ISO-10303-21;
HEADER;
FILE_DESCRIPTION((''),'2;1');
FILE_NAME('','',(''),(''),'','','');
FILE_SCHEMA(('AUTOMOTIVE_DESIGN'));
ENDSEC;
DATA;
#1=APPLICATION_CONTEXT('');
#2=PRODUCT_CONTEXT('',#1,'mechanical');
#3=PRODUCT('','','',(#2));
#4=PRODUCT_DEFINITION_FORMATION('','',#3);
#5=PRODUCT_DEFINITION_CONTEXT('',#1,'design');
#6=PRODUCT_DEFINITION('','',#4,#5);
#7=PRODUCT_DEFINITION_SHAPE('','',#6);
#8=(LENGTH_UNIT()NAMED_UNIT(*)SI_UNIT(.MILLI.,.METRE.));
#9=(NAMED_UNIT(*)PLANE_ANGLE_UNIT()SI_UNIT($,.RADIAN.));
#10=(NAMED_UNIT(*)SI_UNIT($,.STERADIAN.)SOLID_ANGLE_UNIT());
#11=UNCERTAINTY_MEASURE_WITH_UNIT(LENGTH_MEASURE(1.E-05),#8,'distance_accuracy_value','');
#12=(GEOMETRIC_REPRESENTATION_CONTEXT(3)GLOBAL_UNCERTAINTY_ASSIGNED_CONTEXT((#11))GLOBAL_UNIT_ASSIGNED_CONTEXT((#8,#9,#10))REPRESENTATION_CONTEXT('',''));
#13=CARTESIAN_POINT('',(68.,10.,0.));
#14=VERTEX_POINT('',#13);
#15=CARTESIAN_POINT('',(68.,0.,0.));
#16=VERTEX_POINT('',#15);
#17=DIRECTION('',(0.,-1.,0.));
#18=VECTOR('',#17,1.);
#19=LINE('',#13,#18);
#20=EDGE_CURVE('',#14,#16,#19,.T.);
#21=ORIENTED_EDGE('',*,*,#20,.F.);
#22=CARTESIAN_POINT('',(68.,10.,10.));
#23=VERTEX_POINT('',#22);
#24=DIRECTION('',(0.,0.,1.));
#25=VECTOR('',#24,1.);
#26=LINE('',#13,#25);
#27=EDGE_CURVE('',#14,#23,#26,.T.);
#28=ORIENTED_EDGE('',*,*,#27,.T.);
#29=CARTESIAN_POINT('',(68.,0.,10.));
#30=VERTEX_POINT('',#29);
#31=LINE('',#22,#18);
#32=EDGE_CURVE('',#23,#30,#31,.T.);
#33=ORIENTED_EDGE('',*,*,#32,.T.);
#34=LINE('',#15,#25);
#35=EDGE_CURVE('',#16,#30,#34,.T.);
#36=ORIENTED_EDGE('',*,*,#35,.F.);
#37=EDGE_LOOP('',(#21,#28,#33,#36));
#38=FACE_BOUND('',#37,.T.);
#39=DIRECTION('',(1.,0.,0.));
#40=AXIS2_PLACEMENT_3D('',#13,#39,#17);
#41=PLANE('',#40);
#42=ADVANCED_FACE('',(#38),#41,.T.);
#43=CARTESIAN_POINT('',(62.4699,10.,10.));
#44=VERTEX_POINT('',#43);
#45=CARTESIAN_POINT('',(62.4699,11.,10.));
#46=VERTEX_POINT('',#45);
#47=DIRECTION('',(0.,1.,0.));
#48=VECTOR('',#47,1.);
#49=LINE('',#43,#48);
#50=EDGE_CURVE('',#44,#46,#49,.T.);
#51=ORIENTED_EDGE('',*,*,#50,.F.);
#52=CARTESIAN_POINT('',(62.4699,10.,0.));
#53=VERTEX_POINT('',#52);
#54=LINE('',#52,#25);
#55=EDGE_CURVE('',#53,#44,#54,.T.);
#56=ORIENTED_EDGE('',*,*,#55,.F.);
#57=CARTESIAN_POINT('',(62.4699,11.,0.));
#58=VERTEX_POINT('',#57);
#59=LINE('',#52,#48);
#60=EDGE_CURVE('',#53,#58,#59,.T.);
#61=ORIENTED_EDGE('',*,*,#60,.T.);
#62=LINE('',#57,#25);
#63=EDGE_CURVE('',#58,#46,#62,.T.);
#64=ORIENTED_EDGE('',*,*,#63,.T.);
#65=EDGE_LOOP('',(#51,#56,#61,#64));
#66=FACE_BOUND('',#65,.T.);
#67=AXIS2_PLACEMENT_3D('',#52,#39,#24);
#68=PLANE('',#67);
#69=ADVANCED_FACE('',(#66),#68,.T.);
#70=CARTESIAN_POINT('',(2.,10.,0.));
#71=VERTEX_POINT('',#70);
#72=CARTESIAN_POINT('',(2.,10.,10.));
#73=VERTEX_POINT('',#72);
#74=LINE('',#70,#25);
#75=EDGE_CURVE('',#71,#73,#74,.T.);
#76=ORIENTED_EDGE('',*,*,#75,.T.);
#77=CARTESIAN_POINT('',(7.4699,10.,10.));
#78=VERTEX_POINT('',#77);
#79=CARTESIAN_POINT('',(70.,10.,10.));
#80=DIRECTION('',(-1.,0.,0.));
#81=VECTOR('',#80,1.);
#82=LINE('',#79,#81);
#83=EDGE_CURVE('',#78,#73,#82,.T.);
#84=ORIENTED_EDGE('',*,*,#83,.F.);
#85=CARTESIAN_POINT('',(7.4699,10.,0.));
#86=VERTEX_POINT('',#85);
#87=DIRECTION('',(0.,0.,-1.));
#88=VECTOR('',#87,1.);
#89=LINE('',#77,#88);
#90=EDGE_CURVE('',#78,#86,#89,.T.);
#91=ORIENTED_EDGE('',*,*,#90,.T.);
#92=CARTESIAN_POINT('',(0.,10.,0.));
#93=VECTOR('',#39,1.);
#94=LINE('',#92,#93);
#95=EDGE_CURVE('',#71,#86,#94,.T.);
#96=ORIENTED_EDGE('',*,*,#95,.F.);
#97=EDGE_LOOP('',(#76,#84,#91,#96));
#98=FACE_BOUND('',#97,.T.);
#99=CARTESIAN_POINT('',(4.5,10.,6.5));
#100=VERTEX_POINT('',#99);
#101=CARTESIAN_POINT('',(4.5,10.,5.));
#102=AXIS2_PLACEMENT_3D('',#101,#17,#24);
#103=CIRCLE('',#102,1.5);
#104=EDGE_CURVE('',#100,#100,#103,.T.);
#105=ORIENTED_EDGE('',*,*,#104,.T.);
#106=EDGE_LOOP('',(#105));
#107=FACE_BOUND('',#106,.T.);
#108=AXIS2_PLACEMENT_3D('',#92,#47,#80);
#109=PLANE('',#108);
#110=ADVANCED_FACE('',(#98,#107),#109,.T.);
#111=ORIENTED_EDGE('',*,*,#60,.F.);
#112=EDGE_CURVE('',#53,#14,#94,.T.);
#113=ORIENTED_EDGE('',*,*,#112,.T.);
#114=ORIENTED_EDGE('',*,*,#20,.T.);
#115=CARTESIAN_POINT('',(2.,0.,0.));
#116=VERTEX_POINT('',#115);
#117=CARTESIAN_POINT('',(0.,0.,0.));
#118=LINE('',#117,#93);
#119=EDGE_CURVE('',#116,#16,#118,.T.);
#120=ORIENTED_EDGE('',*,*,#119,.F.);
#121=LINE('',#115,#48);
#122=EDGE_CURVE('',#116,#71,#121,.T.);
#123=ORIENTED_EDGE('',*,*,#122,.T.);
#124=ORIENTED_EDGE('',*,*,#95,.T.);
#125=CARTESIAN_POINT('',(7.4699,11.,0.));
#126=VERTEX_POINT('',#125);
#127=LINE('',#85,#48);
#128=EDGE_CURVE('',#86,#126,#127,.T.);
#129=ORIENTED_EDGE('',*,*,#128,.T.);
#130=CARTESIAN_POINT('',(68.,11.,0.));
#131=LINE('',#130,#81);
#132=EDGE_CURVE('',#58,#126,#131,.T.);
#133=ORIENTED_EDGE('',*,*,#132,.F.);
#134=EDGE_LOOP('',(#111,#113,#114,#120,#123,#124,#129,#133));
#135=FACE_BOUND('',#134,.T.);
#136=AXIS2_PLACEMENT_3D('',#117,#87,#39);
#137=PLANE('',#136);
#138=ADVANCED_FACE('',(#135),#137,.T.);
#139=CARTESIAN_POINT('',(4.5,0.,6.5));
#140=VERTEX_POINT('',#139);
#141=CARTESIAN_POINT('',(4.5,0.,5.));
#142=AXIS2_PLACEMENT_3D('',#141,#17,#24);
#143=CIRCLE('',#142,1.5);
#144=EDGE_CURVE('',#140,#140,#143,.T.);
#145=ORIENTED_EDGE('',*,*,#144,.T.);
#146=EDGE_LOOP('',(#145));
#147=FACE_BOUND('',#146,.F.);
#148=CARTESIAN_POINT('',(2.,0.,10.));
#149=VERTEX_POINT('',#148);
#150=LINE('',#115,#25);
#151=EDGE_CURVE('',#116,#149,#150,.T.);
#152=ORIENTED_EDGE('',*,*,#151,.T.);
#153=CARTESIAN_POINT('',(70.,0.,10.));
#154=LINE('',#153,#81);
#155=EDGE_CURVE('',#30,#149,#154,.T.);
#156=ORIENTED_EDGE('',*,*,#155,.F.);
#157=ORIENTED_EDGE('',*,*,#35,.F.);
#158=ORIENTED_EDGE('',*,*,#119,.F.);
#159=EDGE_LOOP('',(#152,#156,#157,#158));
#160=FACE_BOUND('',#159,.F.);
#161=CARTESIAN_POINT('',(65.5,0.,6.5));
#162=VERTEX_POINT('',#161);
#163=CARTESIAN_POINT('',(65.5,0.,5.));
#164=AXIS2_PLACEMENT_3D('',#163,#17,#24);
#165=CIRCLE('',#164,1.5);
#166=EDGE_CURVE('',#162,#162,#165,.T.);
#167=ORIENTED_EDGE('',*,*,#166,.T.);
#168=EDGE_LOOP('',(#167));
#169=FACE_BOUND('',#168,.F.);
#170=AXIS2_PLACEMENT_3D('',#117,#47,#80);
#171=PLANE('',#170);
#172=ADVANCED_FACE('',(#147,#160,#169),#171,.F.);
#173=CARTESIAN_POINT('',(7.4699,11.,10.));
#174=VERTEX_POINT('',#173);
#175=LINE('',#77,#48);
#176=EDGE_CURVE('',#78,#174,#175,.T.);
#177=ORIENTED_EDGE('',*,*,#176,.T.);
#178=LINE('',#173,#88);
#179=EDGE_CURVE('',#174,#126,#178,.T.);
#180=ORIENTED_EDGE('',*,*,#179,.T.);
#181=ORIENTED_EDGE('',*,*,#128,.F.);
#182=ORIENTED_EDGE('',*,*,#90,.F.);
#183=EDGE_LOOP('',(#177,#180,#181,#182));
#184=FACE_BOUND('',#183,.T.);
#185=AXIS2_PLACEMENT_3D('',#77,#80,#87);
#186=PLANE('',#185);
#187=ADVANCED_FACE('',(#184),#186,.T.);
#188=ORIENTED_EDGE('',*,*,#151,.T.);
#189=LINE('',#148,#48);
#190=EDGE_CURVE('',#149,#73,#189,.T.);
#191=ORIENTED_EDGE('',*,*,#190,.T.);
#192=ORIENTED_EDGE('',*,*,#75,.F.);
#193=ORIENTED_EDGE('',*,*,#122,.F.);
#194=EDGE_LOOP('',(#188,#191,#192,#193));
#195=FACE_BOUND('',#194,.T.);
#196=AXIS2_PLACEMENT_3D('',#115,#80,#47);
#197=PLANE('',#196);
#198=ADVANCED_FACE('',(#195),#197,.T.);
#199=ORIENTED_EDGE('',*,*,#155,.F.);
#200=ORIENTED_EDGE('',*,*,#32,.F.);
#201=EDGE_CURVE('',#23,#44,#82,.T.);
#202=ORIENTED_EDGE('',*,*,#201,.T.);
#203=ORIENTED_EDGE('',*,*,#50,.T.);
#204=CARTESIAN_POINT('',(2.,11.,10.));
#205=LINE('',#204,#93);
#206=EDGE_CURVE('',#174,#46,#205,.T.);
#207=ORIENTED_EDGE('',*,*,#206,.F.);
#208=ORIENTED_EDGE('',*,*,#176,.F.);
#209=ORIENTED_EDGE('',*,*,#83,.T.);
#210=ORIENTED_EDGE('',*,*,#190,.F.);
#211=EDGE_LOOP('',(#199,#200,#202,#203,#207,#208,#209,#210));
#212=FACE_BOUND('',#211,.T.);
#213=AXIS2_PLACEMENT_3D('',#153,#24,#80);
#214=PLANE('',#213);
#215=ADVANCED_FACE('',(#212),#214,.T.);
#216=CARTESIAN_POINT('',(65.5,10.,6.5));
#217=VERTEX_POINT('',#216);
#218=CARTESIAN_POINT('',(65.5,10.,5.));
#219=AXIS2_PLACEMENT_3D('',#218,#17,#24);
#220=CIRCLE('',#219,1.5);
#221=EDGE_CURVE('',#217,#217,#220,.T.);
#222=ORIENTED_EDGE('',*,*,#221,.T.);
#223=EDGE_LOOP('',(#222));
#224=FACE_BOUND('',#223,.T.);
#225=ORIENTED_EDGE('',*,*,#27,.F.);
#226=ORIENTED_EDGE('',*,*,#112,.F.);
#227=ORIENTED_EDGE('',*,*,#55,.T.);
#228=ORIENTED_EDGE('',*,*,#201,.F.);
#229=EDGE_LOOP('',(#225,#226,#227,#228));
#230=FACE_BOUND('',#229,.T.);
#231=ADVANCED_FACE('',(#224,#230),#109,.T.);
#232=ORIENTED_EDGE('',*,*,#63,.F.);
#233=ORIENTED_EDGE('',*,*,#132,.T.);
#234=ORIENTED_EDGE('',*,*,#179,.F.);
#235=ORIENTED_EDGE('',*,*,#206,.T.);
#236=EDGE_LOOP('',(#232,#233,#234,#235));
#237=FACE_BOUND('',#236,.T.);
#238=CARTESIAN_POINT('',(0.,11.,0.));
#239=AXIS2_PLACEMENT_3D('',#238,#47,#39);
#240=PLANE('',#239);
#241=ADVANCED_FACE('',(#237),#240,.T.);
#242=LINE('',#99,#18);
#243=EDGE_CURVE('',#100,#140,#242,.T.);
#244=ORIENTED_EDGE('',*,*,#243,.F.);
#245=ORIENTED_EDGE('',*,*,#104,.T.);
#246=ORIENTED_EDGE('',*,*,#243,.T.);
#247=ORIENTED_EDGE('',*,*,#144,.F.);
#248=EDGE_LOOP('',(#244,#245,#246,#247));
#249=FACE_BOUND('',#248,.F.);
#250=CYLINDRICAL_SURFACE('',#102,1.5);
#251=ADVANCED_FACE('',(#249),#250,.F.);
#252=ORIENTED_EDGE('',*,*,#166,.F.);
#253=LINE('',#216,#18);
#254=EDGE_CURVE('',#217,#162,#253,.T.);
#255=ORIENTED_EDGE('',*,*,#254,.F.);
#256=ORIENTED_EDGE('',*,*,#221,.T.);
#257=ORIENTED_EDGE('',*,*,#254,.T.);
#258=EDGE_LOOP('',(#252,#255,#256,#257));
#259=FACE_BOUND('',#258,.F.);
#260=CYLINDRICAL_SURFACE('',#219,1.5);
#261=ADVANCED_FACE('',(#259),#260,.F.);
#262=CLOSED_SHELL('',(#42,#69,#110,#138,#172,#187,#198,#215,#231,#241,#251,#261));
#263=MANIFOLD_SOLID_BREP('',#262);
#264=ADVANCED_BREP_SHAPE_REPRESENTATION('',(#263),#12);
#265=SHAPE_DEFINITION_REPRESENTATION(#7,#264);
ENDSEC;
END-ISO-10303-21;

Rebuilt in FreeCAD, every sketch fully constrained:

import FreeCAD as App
import Part
import Sketcher

V = App.Vector
Q = App.Units.Quantity


def add_polygon(sketch, points):
    """Adds a closed chain of lines whose ends are joined by coincident constraints."""
    first, n = sketch.GeometryCount, len(points)
    for a, b in zip(points, points[1:] + points[:1]):
        sketch.addGeometry(Part.LineSegment(App.Vector(*a, 0), App.Vector(*b, 0)), False)
    for i in range(n):
        sketch.addConstraint(Sketcher.Constraint("Coincident", first + i, 2, first + (i + 1) % n, 1))

doc = App.newDocument("Part")
params = doc.addObject("Spreadsheet::Sheet", "Params")
for row, (alias, value) in enumerate([
    ("sketch1_width", "70 mm"),
    ("sketch1_height", "10 mm"),
    ("pad1_length", "10 mm"),
    ("sketch2_diameter", "3 mm"),
    ("hole_diameter", "3 mm"),
    ("hole_depth", "10 mm"),
    ("sketch3_width", "2 mm"),
    ("sketch3_height", "10 mm"),
    ("pocket1_length", "10 mm"),
    ("sketch4_width", "55 mm"),
    ("sketch4_height", "10 mm"),
    ("pad2_length", "1 mm"),
], start=1):
    params.set(f"A{row}", alias)
    params.set(f"B{row}", "=" + value)
    params.setAlias(f"B{row}", alias)

body = doc.addObject("PartDesign::Body", "Body")

# Sketch on XZ plane
sketch1 = body.newObject("Sketcher::SketchObject", "Sketch")
sketch1.AttachmentSupport = (doc.getObject("XZ_Plane"), [""])
sketch1.MapMode = "FlatFace"
add_polygon(sketch1, [(70, 0), (0, 0), (0, 10), (70, 10)])  # lines 0-3
sketch1.addConstraint([
    Sketcher.Constraint("Horizontal", 0),
    Sketcher.Constraint("Vertical", 1),
    Sketcher.Constraint("Horizontal", 2),
    Sketcher.Constraint("Vertical", 3),
    Sketcher.Constraint("Coincident", 0, 2, -1, 1),
    Sketcher.Constraint("DistanceX", 0, 2, 0, 1, Q("70 mm")),
    Sketcher.Constraint("DistanceY", 1, 1, 1, 2, Q("10 mm")),
])
sketch1.setExpression("Constraints[9]", "Params.sketch1_width")
sketch1.setExpression("Constraints[10]", "Params.sketch1_height")
pad1 = body.newObject("PartDesign::Pad", "Pad")
pad1.Profile = sketch1
pad1.setExpression("Length", "Params.pad1_length")
pad1.Reversed = True

# Sketch on XZ plane
sketch2 = body.newObject("Sketcher::SketchObject", "Sketch001")
sketch2.AttachmentSupport = (doc.getObject("XZ_Plane"), [""])
sketch2.MapMode = "FlatFace"
sketch2.AttachmentOffset = App.Placement(V(0, 0, -10), App.Rotation())
sketch2.addGeometry([
    Part.Circle(V(4.5, 5, 0), V(0, 0, 1), 1.5),
    Part.Circle(V(65.5, 5, 0), V(0, 0, 1), 1.5),
], False)
sketch2.addConstraint([
    Sketcher.Constraint("Equal", 0, 1),
    Sketcher.Constraint("Horizontal", 0, 3, 1, 3),
    Sketcher.Constraint("Diameter", 0, Q("3 mm")),
    Sketcher.Constraint("DistanceY", -1, 1, 0, 3, Q("5 mm")),
    Sketcher.Constraint("DistanceX", 0, 3, 1, 3, Q("61 mm")),
    Sketcher.Constraint("DistanceX", -1, 1, 0, 3, Q("4.5 mm")),
])
sketch2.setExpression("Constraints[2]", "Params.sketch2_diameter")
doc.recompute()
hole = body.newObject("PartDesign::Hole", "Hole")
hole.Profile = sketch2
hole.ThreadType = "None"
hole.setExpression("Diameter", "Params.hole_diameter")
hole.DepthType = "Dimension"
hole.setExpression("Depth", "Params.hole_depth")
hole.DrillPoint = "Angled"
hole.DrillPointAngle = 118
hole.Reversed = True

# Sketch on XY plane
sketch3 = body.newObject("Sketcher::SketchObject", "Sketch002")
sketch3.AttachmentSupport = (doc.getObject("XY_Plane"), [""])
sketch3.MapMode = "FlatFace"
add_polygon(sketch3, [(2, 0), (0, 0), (0, 10), (2, 10)])  # lines 0-3
add_polygon(sketch3, [(70, 0), (68, 0), (68, 10), (70, 10)])  # lines 4-7
sketch3.addConstraint([
    Sketcher.Constraint("Horizontal", 0),
    Sketcher.Constraint("Vertical", 1),
    Sketcher.Constraint("Horizontal", 2),
    Sketcher.Constraint("Vertical", 3),
    Sketcher.Constraint("Horizontal", 4),
    Sketcher.Constraint("Vertical", 5),
    Sketcher.Constraint("Horizontal", 6),
    Sketcher.Constraint("Vertical", 7),
    Sketcher.Constraint("Coincident", 0, 2, -1, 1),
    Sketcher.Constraint("PointOnObject", 4, 2, -1),
    Sketcher.Constraint("Horizontal", 2, 2, 5, 2),
    Sketcher.Constraint("Equal", 2, 4),
    Sketcher.Constraint("DistanceX", 0, 2, 0, 1, Q("2 mm")),
    Sketcher.Constraint("DistanceY", 1, 1, 1, 2, Q("10 mm")),
    Sketcher.Constraint("DistanceX", -1, 1, 4, 2, Q("68 mm")),
])
sketch3.setExpression("Constraints[20]", "Params.sketch3_width")
sketch3.setExpression("Constraints[21]", "Params.sketch3_height")
pocket1 = body.newObject("PartDesign::Pocket", "Pocket")
pocket1.Profile = sketch3
pocket1.setExpression("Length", "Params.pocket1_length")
pocket1.Reversed = True

# Sketch on XZ plane
sketch4 = body.newObject("Sketcher::SketchObject", "Sketch003")
sketch4.AttachmentSupport = (doc.getObject("XZ_Plane"), [""])
sketch4.MapMode = "FlatFace"
sketch4.AttachmentOffset = App.Placement(V(0, 0, -10), App.Rotation())
add_polygon(sketch4, [(62, 10), (62, 0), (7, 0), (7, 10)])  # lines 0-3
sketch4.addConstraint([
    Sketcher.Constraint("Vertical", 0),
    Sketcher.Constraint("Horizontal", 1),
    Sketcher.Constraint("Vertical", 2),
    Sketcher.Constraint("Horizontal", 3),
    Sketcher.Constraint("PointOnObject", 0, 2, -1),
    Sketcher.Constraint("DistanceX", 1, 2, 1, 1, Q("55 mm")),
    Sketcher.Constraint("DistanceY", 0, 2, 0, 1, Q("10 mm")),
    Sketcher.Constraint("DistanceX", -1, 1, 0, 2, Q("62.47 mm")),
])
sketch4.setExpression("Constraints[9]", "Params.sketch4_width")
sketch4.setExpression("Constraints[10]", "Params.sketch4_height")
pad2 = body.newObject("PartDesign::Pad", "Pad001")
pad2.Profile = sketch4
pad2.setExpression("Length", "Params.pad2_length")
pad2.Reversed = True

doc.recompute()
